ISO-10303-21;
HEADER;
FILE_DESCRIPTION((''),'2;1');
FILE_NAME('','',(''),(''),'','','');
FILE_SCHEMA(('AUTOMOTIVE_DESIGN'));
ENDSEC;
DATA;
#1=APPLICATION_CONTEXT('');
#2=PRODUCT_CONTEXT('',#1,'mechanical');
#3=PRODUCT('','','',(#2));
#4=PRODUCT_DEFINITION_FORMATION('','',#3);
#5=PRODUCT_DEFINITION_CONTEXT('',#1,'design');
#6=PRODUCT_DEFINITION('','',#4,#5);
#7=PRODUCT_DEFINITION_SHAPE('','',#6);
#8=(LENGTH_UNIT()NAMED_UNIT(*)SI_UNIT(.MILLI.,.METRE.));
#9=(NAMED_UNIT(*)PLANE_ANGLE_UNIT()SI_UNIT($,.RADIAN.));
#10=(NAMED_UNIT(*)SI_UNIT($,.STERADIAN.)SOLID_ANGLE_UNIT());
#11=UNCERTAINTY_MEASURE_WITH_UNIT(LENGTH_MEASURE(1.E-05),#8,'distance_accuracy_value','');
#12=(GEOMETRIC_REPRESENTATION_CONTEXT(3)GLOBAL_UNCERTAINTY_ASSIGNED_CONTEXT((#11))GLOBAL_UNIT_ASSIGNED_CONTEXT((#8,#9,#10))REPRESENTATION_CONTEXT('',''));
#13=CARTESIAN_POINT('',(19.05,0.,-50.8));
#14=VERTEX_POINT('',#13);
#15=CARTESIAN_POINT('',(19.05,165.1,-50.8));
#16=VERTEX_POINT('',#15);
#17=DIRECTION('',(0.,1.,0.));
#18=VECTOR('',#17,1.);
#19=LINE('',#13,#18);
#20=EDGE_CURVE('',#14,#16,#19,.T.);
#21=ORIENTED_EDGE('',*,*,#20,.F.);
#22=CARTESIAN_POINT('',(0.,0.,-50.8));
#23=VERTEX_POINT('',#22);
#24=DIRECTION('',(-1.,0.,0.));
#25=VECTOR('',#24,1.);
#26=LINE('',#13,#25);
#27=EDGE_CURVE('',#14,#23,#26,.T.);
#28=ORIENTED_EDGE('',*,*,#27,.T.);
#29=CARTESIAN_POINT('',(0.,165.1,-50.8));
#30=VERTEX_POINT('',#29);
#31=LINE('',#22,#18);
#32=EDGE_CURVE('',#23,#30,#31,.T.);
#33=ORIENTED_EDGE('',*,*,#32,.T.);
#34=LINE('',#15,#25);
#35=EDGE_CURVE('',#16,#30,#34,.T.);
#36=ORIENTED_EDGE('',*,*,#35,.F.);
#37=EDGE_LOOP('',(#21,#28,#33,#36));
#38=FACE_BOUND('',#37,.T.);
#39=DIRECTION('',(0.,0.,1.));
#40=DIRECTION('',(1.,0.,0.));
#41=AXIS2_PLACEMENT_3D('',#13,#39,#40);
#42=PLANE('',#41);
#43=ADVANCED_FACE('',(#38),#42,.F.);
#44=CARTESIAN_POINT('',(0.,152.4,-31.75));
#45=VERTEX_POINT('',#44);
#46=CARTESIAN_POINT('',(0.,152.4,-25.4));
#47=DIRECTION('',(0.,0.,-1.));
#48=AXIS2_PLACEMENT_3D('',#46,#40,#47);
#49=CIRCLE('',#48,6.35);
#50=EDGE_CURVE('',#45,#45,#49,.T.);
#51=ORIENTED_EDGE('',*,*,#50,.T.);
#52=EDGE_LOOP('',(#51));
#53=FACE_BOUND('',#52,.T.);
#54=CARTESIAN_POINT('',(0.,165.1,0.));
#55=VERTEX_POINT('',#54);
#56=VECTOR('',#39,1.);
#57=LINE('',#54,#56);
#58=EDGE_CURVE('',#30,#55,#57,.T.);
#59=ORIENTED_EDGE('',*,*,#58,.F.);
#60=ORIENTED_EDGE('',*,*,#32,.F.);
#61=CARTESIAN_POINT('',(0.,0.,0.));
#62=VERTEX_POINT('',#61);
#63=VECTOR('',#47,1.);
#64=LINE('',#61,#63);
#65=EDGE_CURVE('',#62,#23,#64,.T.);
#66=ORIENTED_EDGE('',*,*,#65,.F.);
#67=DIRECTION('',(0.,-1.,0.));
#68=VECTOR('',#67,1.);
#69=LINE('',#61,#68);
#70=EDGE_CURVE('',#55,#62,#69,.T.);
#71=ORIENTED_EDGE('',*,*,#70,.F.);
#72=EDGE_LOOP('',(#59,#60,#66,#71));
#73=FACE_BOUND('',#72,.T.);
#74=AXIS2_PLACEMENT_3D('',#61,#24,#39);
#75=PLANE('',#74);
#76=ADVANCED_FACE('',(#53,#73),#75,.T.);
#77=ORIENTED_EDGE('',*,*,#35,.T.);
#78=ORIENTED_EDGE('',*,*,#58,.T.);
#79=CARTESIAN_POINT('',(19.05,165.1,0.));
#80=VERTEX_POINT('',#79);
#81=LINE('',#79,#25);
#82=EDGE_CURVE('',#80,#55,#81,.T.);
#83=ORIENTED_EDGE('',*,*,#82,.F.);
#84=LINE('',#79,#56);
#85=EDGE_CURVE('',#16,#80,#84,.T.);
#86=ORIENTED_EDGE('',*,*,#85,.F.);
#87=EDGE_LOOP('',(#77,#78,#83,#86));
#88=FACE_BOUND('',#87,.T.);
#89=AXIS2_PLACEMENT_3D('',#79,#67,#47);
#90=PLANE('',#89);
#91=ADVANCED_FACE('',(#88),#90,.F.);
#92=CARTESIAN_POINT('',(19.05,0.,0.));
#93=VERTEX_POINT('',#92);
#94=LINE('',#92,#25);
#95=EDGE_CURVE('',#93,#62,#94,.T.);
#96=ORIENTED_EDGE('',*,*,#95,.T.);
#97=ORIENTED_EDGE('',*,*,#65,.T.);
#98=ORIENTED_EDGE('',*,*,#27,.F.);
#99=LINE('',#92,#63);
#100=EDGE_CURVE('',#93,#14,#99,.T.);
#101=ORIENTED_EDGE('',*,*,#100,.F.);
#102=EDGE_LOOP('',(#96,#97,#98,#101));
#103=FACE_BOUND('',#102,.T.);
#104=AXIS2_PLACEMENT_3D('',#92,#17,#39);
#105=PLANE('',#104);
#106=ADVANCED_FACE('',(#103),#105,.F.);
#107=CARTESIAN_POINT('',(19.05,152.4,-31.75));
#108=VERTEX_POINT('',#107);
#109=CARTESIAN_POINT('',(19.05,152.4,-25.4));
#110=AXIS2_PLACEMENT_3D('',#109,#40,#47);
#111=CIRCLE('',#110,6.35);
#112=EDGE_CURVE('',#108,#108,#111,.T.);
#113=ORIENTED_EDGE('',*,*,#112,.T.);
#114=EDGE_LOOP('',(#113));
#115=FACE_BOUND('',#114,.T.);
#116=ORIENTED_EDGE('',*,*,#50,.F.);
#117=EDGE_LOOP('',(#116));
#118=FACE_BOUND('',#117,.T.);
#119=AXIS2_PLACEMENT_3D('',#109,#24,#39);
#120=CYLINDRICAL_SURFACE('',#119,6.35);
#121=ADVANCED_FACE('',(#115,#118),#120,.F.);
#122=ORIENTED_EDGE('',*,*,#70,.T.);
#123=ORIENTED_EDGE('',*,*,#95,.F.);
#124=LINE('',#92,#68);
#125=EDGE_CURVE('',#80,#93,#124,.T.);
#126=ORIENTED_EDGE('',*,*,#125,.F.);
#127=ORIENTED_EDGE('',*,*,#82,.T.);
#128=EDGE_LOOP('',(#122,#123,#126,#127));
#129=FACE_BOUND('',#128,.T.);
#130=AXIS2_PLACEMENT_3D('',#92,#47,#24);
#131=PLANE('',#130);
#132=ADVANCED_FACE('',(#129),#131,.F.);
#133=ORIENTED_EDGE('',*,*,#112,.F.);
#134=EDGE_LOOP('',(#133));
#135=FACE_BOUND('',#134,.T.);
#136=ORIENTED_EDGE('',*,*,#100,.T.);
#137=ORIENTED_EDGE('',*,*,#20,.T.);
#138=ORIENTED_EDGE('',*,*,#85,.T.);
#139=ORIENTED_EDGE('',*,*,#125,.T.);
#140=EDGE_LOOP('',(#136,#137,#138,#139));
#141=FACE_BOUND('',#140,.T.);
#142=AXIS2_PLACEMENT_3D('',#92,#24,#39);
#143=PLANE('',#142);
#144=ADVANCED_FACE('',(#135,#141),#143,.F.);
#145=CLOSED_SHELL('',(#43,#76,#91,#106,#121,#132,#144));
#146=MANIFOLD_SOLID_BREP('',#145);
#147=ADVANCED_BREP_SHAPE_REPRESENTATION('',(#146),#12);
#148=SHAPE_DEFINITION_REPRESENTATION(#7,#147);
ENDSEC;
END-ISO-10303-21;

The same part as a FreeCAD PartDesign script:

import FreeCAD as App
import Part
import Sketcher

V = App.Vector
Q = App.Units.Quantity


def add_polygon(sketch, points):
    """Adds a closed chain of lines whose ends are joined by coincident constraints."""
    first, n = sketch.GeometryCount, len(points)
    for a, b in zip(points, points[1:] + points[:1]):
        sketch.addGeometry(Part.LineSegment(App.Vector(*a, 0), App.Vector(*b, 0)), False)
    for i in range(n):
        sketch.addConstraint(Sketcher.Constraint("Coincident", first + i, 2, first + (i + 1) % n, 1))

doc = App.newDocument("Part")
body = doc.addObject("PartDesign::Body", "Body")

# Sketch on YZ plane
sketch1 = body.newObject("Sketcher::SketchObject", "Sketch")
sketch1.AttachmentSupport = (doc.getObject("YZ_Plane"), [""])
sketch1.MapMode = "FlatFace"
add_polygon(sketch1, [(165, 0), (0, 0), (0, -51), (165, -51)])  # lines 0-3
sketch1.addGeometry(Part.Circle(V(152, -25, 0), V(0, 0, 1), 6), False)  # 4
sketch1.addConstraint([
    Sketcher.Constraint("Horizontal", 0),
    Sketcher.Constraint("Vertical", 1),
    Sketcher.Constraint("Horizontal", 2),
    Sketcher.Constraint("Vertical", 3),
    Sketcher.Constraint("Coincident", 0, 2, -1, 1),
    Sketcher.Constraint("Diameter", 4, Q("0.5 in")),
    Sketcher.Constraint("DistanceY", 1, 2, 1, 1, Q("2 in")),
    Sketcher.Constraint("DistanceX", 0, 2, 0, 1, Q("6.5 in")),
    Sketcher.Constraint("DistanceX", -1, 1, 4, 3, Q("6 in")),
    Sketcher.Constraint("DistanceY", 4, 3, -1, 1, Q("1 in")),
])
pad1 = body.newObject("PartDesign::Pad", "Pad")
pad1.Profile = sketch1
pad1.Length = Q("0.75 in")

doc.recompute()
